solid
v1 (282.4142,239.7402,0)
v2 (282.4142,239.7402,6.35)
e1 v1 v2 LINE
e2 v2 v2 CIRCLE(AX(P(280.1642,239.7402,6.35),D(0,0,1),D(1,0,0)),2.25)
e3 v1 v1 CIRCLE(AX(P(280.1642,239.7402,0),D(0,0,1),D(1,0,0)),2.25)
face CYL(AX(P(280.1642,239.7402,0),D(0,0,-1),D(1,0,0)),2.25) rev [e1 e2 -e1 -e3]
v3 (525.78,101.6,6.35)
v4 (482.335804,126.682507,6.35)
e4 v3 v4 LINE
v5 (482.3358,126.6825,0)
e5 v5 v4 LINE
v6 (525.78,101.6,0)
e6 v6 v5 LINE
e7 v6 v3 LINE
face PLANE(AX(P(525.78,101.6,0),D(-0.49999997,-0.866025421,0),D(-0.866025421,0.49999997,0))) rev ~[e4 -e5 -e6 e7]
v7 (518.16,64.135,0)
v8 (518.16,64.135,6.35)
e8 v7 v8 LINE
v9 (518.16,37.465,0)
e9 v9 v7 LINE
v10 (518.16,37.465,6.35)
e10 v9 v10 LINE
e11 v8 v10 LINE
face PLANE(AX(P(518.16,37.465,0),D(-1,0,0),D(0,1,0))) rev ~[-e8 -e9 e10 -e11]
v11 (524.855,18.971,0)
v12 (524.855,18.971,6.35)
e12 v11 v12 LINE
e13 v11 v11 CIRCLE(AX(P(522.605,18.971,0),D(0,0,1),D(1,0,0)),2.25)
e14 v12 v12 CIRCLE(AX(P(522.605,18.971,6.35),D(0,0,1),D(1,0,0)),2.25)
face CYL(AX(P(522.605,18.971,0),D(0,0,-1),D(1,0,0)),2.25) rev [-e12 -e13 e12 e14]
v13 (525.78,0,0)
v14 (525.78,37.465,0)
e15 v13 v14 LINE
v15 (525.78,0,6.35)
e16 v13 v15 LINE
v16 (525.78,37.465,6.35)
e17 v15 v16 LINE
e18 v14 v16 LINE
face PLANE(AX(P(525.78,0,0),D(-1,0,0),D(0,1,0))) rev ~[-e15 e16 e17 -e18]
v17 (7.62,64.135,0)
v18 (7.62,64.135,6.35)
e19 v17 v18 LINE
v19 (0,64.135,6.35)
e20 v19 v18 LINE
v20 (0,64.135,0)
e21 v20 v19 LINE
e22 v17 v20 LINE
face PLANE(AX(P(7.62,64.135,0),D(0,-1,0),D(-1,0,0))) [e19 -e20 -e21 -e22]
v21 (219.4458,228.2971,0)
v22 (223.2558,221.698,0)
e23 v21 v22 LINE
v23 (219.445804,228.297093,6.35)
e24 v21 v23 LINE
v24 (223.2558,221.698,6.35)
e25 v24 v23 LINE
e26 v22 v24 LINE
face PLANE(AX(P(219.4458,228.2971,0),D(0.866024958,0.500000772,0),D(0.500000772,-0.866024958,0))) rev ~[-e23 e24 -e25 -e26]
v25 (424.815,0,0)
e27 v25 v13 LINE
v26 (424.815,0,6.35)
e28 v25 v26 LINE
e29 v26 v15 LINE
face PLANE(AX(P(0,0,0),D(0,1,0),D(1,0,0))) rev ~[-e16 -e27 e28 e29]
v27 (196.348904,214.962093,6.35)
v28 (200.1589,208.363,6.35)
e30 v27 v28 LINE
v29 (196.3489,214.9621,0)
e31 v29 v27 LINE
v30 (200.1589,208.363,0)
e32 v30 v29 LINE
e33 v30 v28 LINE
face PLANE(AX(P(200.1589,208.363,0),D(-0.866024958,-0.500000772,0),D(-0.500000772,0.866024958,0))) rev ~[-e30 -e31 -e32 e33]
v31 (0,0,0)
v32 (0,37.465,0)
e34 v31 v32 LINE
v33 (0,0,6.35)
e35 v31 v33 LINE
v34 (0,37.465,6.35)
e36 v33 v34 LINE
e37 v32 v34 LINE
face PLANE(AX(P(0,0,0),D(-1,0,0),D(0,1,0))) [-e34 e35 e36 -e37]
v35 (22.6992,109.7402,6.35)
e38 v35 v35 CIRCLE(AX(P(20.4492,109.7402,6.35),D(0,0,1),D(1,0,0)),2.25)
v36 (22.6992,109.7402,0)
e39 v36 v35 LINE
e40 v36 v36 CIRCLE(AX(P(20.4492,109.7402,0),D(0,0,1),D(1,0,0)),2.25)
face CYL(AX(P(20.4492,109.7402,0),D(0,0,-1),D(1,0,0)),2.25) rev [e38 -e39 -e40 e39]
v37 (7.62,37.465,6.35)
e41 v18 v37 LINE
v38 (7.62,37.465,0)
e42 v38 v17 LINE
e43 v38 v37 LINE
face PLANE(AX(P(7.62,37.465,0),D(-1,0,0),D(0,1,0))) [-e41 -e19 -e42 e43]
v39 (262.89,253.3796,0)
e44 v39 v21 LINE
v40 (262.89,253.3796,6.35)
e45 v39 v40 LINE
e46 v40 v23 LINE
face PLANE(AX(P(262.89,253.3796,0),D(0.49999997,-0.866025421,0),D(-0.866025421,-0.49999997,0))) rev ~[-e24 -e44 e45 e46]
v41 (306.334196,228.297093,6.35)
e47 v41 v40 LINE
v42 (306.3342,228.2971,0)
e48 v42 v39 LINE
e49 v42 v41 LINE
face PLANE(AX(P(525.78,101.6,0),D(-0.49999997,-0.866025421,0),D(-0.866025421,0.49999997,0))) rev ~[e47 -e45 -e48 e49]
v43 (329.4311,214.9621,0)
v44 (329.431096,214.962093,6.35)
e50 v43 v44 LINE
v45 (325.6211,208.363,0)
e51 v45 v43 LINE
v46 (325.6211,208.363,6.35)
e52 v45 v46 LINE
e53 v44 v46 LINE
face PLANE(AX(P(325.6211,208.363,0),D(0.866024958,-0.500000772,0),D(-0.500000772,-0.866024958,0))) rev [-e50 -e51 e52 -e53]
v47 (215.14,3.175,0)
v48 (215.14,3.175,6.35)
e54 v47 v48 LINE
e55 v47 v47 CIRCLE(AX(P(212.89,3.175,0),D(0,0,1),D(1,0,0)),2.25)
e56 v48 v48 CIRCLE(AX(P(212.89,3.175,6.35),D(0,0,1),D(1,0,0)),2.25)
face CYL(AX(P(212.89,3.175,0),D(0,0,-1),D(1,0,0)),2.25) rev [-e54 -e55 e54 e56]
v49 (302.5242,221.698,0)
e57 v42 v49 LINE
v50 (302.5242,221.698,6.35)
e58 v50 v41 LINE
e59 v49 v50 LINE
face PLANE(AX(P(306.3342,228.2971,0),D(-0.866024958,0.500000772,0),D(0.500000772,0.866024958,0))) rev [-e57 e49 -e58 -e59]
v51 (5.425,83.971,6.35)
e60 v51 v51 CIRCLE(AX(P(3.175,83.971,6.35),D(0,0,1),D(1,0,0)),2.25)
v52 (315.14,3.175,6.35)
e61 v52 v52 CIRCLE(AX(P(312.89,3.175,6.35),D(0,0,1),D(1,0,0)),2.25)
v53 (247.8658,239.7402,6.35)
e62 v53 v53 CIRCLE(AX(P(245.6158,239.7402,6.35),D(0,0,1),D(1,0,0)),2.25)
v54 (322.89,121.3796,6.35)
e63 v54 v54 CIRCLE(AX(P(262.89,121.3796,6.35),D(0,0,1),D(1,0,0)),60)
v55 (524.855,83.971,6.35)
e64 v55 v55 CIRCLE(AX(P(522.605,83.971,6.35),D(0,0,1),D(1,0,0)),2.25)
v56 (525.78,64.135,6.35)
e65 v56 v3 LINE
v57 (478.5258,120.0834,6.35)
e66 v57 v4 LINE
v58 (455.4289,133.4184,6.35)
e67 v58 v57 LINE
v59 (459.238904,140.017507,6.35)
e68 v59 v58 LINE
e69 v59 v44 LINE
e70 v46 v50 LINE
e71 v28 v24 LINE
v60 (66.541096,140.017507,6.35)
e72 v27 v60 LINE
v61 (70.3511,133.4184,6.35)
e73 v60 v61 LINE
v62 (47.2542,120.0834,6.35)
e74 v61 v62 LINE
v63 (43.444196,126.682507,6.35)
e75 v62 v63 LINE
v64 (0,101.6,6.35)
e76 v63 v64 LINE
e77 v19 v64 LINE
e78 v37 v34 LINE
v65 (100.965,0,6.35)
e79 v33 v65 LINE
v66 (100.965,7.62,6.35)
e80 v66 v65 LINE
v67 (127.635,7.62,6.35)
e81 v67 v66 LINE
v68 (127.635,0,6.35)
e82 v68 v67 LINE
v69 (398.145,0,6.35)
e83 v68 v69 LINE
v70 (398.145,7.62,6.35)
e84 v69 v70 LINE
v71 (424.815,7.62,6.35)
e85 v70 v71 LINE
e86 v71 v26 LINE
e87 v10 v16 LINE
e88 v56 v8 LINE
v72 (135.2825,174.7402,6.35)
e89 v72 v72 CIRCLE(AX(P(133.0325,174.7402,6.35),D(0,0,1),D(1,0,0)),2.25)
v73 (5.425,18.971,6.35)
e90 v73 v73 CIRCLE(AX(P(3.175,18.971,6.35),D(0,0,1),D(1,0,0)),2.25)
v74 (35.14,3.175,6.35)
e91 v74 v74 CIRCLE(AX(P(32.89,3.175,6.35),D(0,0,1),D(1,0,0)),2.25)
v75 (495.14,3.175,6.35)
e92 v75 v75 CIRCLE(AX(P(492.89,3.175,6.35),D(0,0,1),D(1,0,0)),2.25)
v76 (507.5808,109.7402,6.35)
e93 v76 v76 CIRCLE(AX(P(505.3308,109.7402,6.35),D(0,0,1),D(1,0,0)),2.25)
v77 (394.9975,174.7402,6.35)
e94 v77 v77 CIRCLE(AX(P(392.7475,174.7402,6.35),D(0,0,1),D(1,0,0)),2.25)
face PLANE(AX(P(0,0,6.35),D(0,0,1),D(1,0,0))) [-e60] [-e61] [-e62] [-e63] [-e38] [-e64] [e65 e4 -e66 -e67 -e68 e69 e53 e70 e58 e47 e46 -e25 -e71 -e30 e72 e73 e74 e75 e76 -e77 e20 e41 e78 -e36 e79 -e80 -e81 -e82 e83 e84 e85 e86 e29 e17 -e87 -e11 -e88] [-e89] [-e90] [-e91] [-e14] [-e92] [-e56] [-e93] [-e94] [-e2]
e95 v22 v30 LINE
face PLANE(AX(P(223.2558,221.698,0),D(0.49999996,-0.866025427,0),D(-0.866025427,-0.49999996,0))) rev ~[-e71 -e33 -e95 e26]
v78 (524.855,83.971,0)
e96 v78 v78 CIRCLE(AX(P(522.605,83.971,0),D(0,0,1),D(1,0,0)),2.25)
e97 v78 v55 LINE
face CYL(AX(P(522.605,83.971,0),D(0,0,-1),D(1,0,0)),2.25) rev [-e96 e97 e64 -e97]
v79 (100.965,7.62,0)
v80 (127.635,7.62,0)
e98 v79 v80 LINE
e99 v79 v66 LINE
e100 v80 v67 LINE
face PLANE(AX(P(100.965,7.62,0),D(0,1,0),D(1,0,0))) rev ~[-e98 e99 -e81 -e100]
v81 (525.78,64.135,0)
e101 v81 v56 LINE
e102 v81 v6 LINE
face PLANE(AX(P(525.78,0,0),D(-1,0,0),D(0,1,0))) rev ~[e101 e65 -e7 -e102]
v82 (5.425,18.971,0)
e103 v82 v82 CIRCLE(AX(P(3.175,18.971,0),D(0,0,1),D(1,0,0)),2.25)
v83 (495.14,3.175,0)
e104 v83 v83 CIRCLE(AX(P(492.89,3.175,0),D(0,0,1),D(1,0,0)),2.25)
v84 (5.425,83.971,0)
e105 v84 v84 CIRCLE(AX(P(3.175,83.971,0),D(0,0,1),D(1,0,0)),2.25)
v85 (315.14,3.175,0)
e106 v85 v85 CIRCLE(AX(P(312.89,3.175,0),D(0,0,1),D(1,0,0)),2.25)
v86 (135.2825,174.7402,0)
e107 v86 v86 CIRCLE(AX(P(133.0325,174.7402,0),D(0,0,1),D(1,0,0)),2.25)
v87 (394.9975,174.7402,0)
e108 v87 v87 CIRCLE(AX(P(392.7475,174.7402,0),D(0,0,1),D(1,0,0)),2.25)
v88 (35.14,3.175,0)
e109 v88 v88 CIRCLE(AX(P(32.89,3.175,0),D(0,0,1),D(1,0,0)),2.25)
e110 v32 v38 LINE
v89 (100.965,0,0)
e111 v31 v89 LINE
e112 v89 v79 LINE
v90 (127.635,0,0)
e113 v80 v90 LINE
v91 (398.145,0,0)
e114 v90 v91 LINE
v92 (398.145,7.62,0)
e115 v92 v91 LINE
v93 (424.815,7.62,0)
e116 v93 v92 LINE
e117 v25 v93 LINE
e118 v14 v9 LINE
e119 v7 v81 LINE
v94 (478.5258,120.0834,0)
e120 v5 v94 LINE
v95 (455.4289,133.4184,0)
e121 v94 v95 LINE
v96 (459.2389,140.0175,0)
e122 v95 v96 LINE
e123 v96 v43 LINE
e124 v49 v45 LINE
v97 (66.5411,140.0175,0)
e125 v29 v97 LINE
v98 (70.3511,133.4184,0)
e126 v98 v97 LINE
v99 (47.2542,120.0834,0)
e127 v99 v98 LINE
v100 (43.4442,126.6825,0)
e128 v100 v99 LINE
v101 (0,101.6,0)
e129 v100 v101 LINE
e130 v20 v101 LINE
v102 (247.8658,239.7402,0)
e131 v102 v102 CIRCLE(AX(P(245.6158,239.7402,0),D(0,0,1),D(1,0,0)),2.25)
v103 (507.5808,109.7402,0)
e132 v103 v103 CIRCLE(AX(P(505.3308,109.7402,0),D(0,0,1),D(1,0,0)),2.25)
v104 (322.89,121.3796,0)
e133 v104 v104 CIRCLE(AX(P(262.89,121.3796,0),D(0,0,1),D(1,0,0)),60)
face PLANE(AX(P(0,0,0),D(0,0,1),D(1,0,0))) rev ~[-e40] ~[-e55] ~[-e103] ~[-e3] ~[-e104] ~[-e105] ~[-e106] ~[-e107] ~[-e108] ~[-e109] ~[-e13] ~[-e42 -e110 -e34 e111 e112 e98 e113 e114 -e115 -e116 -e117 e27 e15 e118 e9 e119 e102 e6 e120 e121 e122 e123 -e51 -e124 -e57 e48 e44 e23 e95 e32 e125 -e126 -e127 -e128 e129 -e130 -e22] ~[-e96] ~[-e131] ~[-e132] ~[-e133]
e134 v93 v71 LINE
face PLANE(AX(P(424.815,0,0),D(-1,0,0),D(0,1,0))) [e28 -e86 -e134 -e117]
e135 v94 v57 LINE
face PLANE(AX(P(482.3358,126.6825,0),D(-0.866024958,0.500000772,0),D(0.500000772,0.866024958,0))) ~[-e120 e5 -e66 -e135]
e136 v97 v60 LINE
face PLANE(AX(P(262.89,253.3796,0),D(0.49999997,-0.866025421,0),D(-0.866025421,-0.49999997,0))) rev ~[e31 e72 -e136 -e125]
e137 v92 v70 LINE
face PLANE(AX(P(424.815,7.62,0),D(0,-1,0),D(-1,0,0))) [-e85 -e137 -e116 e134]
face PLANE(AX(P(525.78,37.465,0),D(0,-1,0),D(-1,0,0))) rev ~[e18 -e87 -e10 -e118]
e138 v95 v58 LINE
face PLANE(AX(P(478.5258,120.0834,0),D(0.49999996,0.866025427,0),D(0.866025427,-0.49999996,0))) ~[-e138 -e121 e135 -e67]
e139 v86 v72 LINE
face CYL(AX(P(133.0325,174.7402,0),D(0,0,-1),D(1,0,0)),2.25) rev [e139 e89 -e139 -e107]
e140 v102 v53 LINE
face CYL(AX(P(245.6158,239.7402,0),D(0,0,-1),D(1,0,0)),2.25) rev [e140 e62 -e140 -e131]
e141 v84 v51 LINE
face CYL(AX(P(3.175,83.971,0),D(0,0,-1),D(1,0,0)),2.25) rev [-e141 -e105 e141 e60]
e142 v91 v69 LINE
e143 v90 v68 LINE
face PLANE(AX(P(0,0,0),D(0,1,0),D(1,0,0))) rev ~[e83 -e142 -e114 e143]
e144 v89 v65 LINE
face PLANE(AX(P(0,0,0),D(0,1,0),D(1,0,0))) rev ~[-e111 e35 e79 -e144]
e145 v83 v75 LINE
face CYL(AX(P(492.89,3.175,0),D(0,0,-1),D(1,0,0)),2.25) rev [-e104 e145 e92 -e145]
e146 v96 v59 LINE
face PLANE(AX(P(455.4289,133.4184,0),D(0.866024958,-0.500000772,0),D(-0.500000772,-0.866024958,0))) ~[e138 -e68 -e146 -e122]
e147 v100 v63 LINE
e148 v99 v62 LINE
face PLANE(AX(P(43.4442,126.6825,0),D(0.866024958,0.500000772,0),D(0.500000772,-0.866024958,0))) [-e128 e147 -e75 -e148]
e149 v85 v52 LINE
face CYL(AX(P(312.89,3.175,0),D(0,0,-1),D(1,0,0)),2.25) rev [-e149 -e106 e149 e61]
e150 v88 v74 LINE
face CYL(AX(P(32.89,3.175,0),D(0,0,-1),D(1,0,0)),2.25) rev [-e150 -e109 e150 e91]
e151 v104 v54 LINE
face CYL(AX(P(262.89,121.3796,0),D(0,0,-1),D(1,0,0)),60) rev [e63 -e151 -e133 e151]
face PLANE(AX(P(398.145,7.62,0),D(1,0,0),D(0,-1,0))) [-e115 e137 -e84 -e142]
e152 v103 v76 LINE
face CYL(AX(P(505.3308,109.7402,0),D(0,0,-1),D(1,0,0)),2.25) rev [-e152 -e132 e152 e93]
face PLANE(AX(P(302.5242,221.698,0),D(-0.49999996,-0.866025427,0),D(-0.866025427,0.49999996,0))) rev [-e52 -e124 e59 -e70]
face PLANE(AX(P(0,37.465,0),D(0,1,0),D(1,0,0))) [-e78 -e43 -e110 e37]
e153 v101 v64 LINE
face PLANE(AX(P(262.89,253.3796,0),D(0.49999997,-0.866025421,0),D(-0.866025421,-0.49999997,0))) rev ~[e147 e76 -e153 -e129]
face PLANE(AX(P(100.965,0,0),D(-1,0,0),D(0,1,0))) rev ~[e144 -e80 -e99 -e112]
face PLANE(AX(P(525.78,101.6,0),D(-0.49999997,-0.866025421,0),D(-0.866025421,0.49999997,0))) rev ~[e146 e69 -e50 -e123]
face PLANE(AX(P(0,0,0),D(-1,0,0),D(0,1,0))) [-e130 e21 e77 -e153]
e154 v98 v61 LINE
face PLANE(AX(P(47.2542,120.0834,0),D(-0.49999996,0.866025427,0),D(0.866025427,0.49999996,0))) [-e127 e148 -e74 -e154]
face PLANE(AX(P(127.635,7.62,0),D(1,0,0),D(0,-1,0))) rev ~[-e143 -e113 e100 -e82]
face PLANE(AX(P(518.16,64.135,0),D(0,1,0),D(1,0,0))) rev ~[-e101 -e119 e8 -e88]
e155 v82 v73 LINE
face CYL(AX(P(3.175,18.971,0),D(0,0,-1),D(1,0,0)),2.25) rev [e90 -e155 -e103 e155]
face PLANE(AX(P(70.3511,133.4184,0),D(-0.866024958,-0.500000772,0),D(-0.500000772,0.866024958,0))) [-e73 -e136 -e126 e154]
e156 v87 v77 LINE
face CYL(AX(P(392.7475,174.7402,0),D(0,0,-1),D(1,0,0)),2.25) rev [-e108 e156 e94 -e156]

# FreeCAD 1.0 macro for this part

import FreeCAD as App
import Part
import Sketcher

V = App.Vector
Q = App.Units.Quantity


def add_polygon(sketch, points):
    """Adds a closed chain of lines whose ends are joined by coincident constraints."""
    first, n = sketch.GeometryCount, len(points)
    for a, b in zip(points, points[1:] + points[:1]):
        sketch.addGeometry(Part.LineSegment(App.Vector(*a, 0), App.Vector(*b, 0)), False)
    for i in range(n):
        sketch.addConstraint(Sketcher.Constraint("Coincident", first + i, 2, first + (i + 1) % n, 1))

doc = App.newDocument("Part")
params = doc.addObject("Spreadsheet::Sheet", "Params")
for row, (alias, value) in enumerate([
    ("sketch1_height", "4 in"),
    ("sketch1_width", "20.7 in"),
    ("pad1_length", "0.25 in"),
    ("sketch2_width", "0.3 in"),
    ("sketch2_width2", "1.05 in"),
    ("sketch3_length", "0.3 in"),
    ("sketch3_length2", "1.05 in"),
], start=1):
    params.set(f"A{row}", alias)
    params.set(f"B{row}", "=" + value)
    params.setAlias(f"B{row}", alias)

body = doc.addObject("PartDesign::Body", "Body")

sketch1 = body.newObject("Sketcher::SketchObject", "Sketch")
sketch1.AttachmentSupport = (doc.getObject("XY_Plane"), [""])
sketch1.MapMode = "FlatFace"
add_polygon(sketch1, [(0, 101.6), (0, 0), (525.8, 0), (525.8, 101.6), (262.9, 253.4)])
sketch1.addGeometry(Part.Circle(V(32.9, 3.2, 0), V(0, 0, 1), 2.2), False)
sketch1.addGeometry(Part.Circle(V(3.2, 19, 0), V(0, 0, 1), 2.2), False)
sketch1.addGeometry(Part.Circle(V(212.9, 3.2, 0), V(0, 0, 1), 2.2), False)
sketch1.addGeometry(Part.Circle(V(3.2, 84, 0), V(0, 0, 1), 2.2), False)
sketch1.addGeometry(Part.Circle(V(20.4, 109.7, 0), V(0, 0, 1), 2.2), False)
sketch1.addGeometry(Part.Circle(V(312.9, 3.2, 0), V(0, 0, 1), 2.2), False)
sketch1.addGeometry(Part.Circle(V(492.9, 3.2, 0), V(0, 0, 1), 2.2), False)
sketch1.addGeometry(Part.Circle(V(522.6, 19, 0), V(0, 0, 1), 2.2), False)
sketch1.addGeometry(Part.Circle(V(262.9, 121.4, 0), V(0, 0, 1), 60), False)
sketch1.addGeometry(Part.Circle(V(522.6, 84, 0), V(0, 0, 1), 2.2), False)
sketch1.addGeometry(Part.Circle(V(505.3, 109.7, 0), V(0, 0, 1), 2.2), False)
sketch1.addGeometry(Part.Circle(V(133, 174.7, 0), V(0, 0, 1), 2.2), False)
sketch1.addGeometry(Part.Circle(V(245.6, 239.7, 0), V(0, 0, 1), 2.2), False)
sketch1.addGeometry(Part.Circle(V(392.7, 174.7, 0), V(0, 0, 1), 2.2), False)
sketch1.addGeometry(Part.Circle(V(280.2, 239.7, 0), V(0, 0, 1), 2.2), False)
sketch1.addConstraint([
    Sketcher.Constraint("Vertical", 0),
    Sketcher.Constraint("Horizontal", 1),
    Sketcher.Constraint("Vertical", 2),
    Sketcher.Constraint("Coincident", 0, 2, -1, 1),
    Sketcher.Constraint("Equal", 5, 6),
    Sketcher.Constraint("Equal", 6, 7),
    Sketcher.Constraint("Equal", 7, 8),
    Sketcher.Constraint("Equal", 8, 9),
    Sketcher.Constraint("Equal", 9, 10),
    Sketcher.Constraint("Equal", 10, 11),
    Sketcher.Constraint("Equal", 11, 12),
    Sketcher.Constraint("Equal", 12, 14),
    Sketcher.Constraint("Equal", 14, 15),
    Sketcher.Constraint("Equal", 15, 16),
    Sketcher.Constraint("Equal", 16, 17),
    Sketcher.Constraint("Equal", 17, 18),
    Sketcher.Constraint("Equal", 18, 19),
    Sketcher.Constraint("Horizontal", 5, 3, 7, 3),
    Sketcher.Constraint("Horizontal", 7, 3, 10, 3),
    Sketcher.Constraint("Horizontal", 10, 3, 11, 3),
    Sketcher.Constraint("Horizontal", 6, 3, 12, 3),
    Sketcher.Constraint("Horizontal", 8, 3, 14, 3),
    Sketcher.Constraint("Horizontal", 9, 3, 15, 3),
    Sketcher.Constraint("Horizontal", 16, 3, 18, 3),
    Sketcher.Constraint("Horizontal", 17, 3, 19, 3),
    Sketcher.Constraint("Horizontal", 2, 2, 4, 2),
    Sketcher.Constraint("Vertical", 6, 3, 8, 3),
    Sketcher.Constraint("Vertical", 12, 3, 14, 3),
    Sketcher.Constraint("Vertical", 13, 3, 3, 2),
    Sketcher.Constraint("Equal", 3, 4),
    Sketcher.Constraint("DistanceY", 0, 2, 0, 1, Q("4 in")),
    Sketcher.Constraint("DistanceX", 1, 1, 1, 2, Q("20.7 in")),
    Sketcher.Constraint("Diameter", 13, Q("4.7244 in")),
    Sketcher.Constraint("Diameter", 5, Q("4.5 mm")),
    Sketcher.Constraint("DistanceY", -1, 1, 5, 3, Q("0.125 in")),
    Sketcher.Constraint("DistanceX", -1, 1, 6, 3, Q("0.125 in")),
    Sketcher.Constraint("Angle", 3, Q("150 deg")),
    Sketcher.Constraint("DistanceX", 7, 3, 10, 3, Q("3.937 in")),
    Sketcher.Constraint("DistanceX", 12, 3, 1, 2, Q("0.125 in")),
    Sketcher.Constraint("DistanceY", -1, 1, 13, 3, Q("121.3796 mm")),
    Sketcher.Constraint("DistanceY", 6, 3, 8, 3, Q("65 mm")),
    Sketcher.Constraint("DistanceX", 5, 3, 11, 3, Q("460 mm")),
    Sketcher.Constraint("DistanceY", 9, 3, 16, 3, Q("65 mm")),
    Sketcher.Constraint("DistanceY", 16, 3, 17, 3, Q("65 mm")),
    Sketcher.Constraint("DistanceX", 16, 3, 7, 3, Q("3.144 in")),
    Sketcher.Constraint("DistanceX", 10, 3, 18, 3, Q("3.144 in")),
    Sketcher.Constraint("DistanceY", -1, 1, 6, 3, Q("0.7469 in")),
    Sketcher.Constraint("DistanceX", -1, 1, 7, 3, Q("8.3815 in")),
    Sketcher.Constraint("DistanceY", -1, 1, 17, 3, Q("9.4386 in")),
    Sketcher.Constraint("DistanceX", 9, 3, 5, 3, Q("0.4898 in")),
    Sketcher.Constraint("DistanceX", 9, 3, 7, 3, Q("7.5764 in")),
    Sketcher.Constraint("DistanceX", 11, 3, 15, 3, Q("0.4898 in")),
    Sketcher.Constraint("DistanceX", 17, 3, 10, 3, Q("2.6486 in")),
    Sketcher.Constraint("DistanceX", -1, 1, 19, 3, Q("280.1642 mm")),
])
sketch1.setExpression("Constraints[35]", "Params.sketch1_height")
sketch1.setExpression("Constraints[36]", "Params.sketch1_width")
pad1 = body.newObject("PartDesign::Pad", "Pad")
pad1.Profile = sketch1
pad1.setExpression("Length", "Params.pad1_length")

sketch2 = body.newObject("Sketcher::SketchObject", "Sketch001")
sketch2.AttachmentSupport = (doc.getObject("XY_Plane"), [""])
sketch2.MapMode = "FlatFace"
add_polygon(sketch2, [(101, 0), (101, 8), (128, 8), (128, 0)])
add_polygon(sketch2, [(8, 37), (0, 37), (0, 64), (8, 64)])
add_polygon(sketch2, [(526, 64), (526, 37), (518, 37), (518, 64)])
add_polygon(sketch2, [(425, 0), (398, 0), (398, 8), (425, 8)])
sketch2.addConstraint([
    Sketcher.Constraint("Vertical", 0),
    Sketcher.Constraint("Horizontal", 1),
    Sketcher.Constraint("Vertical", 2),
    Sketcher.Constraint("Horizontal", 3),
    Sketcher.Constraint("Horizontal", 4),
    Sketcher.Constraint("Vertical", 5),
    Sketcher.Constraint("Horizontal", 6),
    Sketcher.Constraint("Vertical", 7),
    Sketcher.Constraint("Vertical", 8),
    Sketcher.Constraint("Horizontal", 9),
    Sketcher.Constraint("Vertical", 10),
    Sketcher.Constraint("Horizontal", 11),
    Sketcher.Constraint("Horizontal", 12),
    Sketcher.Constraint("Vertical", 13),
    Sketcher.Constraint("Horizontal", 14),
    Sketcher.Constraint("Vertical", 15),
    Sketcher.Constraint("PointOnObject", 2, 2, -1),
    Sketcher.Constraint("PointOnObject", 4, 2, -2),
    Sketcher.Constraint("PointOnObject", 12, 2, -1),
    Sketcher.Constraint("Horizontal", 7, 2, 8, 2),
    Sketcher.Constraint("Horizontal", 6, 2, 10, 2),
    Sketcher.Constraint("Horizontal", 1, 2, 13, 2),
    Sketcher.Constraint("Equal", 6, 9),
    Sketcher.Constraint("Equal", 3, 12),
    Sketcher.Constraint("Equal", 11, 0),
    Sketcher.Constraint("Equal", 14, 5),
    Sketcher.Constraint("DistanceX", 4, 2, 4, 1, Q("0.3 in")),
    Sketcher.Constraint("DistanceX", 1, 1, 1, 2, Q("1.05 in")),
    Sketcher.Constraint("DistanceX", -1, 1, 0, 2, Q("3.975 in")),
    Sketcher.Constraint("DistanceX", 14, 2, 8, 2, Q("3.975 in")),
    Sketcher.Constraint("DistanceX", -1, 1, 8, 2, Q("20.7 in")),
    Sketcher.Constraint("DistanceY", -1, 1, 4, 2, Q("1.475 in")),
])
sketch2.setExpression("Constraints[42]", "Params.sketch2_width")
sketch2.setExpression("Constraints[43]", "Params.sketch2_width2")
pocket1 = body.newObject("PartDesign::Pocket", "Pocket")
pocket1.Profile = sketch2
pocket1.Type = "ThroughAll"
pocket1.Reversed = True

sketch3 = body.newObject("Sketcher::SketchObject", "Sketch002")
sketch3.AttachmentSupport = (doc.getObject("XY_Plane"), [""])
sketch3.MapMode = "FlatFace"
add_polygon(sketch3, [(47, 120), (43, 127), (67, 140), (70, 133)])
add_polygon(sketch3, [(200, 208), (196, 215), (219, 228), (223, 222)])
sketch3.addConstraint([
    Sketcher.Constraint("Perpendicular", 0, 1),
    Sketcher.Constraint("Perpendicular", 1, 2),
    Sketcher.Constraint("Perpendicular", 2, 3),
    Sketcher.Constraint("Perpendicular", 3, 4),
    Sketcher.Constraint("Perpendicular", 4, 5),
    Sketcher.Constraint("Perpendicular", 5, 6),
    Sketcher.Constraint("Perpendicular", 6, 7),
    Sketcher.Constraint("Equal", 2, 4),
    Sketcher.Constraint("Equal", 3, 5),
    Sketcher.Constraint("Distance", 0, Q("0.3 in")),
    Sketcher.Constraint("Distance", 1, Q("1.05 in")),
    Sketcher.Constraint("Angle", 0, Q("120 deg")),
    Sketcher.Constraint("DistanceX", -1, 1, 0, 2, Q("1.7104 in")),
    Sketcher.Constraint("DistanceY", -1, 1, 0, 2, Q("4.9875 in")),
    Sketcher.Constraint("DistanceX", -1, 1, 5, 2, Q("8.6396 in")),
    Sketcher.Constraint("DistanceY", -1, 1, 4, 2, Q("214.962 mm")),
])
sketch3.setExpression("Constraints[17]", "Params.sketch3_length")
sketch3.setExpression("Constraints[18]", "Params.sketch3_length2")
pocket2 = body.newObject("PartDesign::Pocket", "Pocket001")
pocket2.Profile = sketch3
pocket2.Type = "ThroughAll"
pocket2.Reversed = True
doc.recompute()

datumplane = body.newObject("PartDesign::Plane", "DatumPlane")
datumplane.AttachmentSupport = (doc.getObject("YZ_Plane"), [""])
datumplane.MapMode = "FlatFace"
datumplane.AttachmentOffset = App.Placement(V(0, 0, 10.35 * 25.4), App.Rotation())
mirrored = body.newObject("PartDesign::Mirrored", "Mirrored")
mirrored.Originals = [pocket2]
mirrored.MirrorPlane = (datumplane, [""])
body.Tip = mirrored

doc.recompute()
